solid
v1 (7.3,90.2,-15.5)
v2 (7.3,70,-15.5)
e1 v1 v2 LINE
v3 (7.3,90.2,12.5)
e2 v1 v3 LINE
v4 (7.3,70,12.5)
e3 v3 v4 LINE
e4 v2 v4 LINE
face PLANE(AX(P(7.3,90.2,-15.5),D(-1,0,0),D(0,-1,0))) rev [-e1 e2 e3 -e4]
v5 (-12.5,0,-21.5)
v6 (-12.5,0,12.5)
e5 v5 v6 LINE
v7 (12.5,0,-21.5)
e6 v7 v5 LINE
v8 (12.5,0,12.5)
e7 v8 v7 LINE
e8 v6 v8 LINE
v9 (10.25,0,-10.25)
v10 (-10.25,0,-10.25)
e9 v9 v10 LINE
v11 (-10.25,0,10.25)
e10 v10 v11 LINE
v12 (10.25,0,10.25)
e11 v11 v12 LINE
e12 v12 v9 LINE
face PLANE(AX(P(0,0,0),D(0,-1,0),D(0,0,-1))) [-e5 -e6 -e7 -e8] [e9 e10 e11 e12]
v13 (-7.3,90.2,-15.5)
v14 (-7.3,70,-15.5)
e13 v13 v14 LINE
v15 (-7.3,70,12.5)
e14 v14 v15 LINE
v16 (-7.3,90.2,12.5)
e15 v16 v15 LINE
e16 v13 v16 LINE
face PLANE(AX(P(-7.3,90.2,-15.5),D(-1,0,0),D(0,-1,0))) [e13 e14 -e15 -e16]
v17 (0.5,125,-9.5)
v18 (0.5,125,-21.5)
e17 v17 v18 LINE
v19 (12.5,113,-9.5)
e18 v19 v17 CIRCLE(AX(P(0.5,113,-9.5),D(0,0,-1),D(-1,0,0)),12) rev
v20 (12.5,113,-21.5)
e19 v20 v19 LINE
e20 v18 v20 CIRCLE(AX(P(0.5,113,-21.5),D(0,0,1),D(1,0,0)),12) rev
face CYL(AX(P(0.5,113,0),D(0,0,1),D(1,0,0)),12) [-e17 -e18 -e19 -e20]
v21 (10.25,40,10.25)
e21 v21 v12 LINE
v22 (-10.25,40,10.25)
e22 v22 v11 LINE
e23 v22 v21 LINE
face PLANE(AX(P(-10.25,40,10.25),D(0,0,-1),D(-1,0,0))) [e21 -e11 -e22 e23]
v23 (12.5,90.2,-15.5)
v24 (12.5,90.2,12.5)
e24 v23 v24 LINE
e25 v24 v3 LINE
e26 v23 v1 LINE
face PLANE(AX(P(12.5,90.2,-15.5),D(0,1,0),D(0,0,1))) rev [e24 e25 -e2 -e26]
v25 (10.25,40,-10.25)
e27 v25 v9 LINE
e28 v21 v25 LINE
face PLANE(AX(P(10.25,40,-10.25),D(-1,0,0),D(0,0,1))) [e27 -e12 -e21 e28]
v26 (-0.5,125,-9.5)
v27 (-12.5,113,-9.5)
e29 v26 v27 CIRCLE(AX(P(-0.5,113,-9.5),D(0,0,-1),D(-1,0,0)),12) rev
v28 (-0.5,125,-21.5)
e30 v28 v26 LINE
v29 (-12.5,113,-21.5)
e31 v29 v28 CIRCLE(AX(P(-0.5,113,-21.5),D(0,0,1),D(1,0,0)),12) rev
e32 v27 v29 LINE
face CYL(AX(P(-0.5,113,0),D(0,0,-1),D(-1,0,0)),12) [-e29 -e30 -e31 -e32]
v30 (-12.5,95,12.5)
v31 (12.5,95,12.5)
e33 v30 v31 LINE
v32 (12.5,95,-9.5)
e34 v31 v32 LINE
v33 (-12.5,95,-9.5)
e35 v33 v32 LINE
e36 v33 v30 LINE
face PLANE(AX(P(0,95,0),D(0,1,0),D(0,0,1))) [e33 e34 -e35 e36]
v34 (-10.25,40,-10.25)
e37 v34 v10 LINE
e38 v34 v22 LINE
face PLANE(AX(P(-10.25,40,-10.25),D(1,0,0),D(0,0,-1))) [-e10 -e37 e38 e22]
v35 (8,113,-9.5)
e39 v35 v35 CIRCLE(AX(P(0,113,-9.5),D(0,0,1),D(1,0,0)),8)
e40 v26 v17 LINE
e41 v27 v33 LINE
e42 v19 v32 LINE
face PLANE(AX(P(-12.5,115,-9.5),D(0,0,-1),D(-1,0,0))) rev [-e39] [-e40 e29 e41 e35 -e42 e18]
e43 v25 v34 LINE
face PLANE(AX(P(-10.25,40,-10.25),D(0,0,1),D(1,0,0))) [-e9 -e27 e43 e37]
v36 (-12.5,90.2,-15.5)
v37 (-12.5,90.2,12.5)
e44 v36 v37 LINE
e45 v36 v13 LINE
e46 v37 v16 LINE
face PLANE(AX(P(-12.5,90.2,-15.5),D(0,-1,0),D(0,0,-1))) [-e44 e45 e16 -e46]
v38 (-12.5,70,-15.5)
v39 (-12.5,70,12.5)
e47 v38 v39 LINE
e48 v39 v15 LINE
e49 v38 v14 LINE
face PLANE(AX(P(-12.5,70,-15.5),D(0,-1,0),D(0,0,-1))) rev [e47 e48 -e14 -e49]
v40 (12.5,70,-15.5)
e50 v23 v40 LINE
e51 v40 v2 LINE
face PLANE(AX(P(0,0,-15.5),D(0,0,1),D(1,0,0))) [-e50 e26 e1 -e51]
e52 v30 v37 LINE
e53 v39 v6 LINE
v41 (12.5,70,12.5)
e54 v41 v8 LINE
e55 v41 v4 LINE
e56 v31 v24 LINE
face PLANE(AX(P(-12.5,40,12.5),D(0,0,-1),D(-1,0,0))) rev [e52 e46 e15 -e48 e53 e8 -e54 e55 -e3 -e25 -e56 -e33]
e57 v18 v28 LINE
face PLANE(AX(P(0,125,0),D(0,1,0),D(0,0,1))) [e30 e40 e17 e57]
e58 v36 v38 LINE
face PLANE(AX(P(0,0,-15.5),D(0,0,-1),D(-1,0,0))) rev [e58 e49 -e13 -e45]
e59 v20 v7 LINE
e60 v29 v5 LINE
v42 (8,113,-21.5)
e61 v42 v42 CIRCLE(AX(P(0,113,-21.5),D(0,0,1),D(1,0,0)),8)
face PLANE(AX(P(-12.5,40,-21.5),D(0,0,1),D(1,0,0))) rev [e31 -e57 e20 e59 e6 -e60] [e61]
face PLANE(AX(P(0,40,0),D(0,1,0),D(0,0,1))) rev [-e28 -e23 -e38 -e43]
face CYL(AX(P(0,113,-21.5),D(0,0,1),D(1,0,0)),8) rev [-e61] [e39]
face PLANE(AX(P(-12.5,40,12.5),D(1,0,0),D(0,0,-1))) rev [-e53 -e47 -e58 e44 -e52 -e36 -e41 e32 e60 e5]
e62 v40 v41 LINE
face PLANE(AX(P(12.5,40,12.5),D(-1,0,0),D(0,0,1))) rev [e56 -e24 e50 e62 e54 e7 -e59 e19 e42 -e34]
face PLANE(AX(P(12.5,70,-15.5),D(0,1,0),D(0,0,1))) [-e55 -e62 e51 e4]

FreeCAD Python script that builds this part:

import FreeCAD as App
import Part
import Sketcher
from FreeCAD import Vector
Q = App.Units.Quantity


def edges_at(feature, points):
    """Names of the edges that pass closest to the given points."""
    edges = feature.Shape.Edges
    near = lambda p: min(range(len(edges)), key=lambda i: edges[i].distToShape(Part.Vertex(*p))[0])
    return sorted({f"Edge{near(p) + 1}" for p in points})


def add_polygon(sketch, points):
    """Adds a closed chain of lines whose ends are joined by coincident constraints."""
    first, n = sketch.GeometryCount, len(points)
    for a, b in zip(points, points[1:] + points[:1]):
        sketch.addGeometry(Part.LineSegment(App.Vector(*a, 0), App.Vector(*b, 0)), False)
    for i in range(n):
        sketch.addConstraint(Sketcher.Constraint("Coincident", first + i, 2, first + (i + 1) % n, 1))

doc = App.newDocument("Part")
params = doc.addObject("Spreadsheet::Sheet", "Params")
for row, (alias, value) in enumerate([
    ("sketch1_width", "25 mm"),
    ("sketch1_height", "34 mm"),
    ("sketch1_width2", "20.5 mm"),
    ("pad1_length", "40 mm"),
    ("sketch2_width", "25 mm"),
    ("sketch2_height", "34 mm"),
    ("pad2_length", "55 mm"),
    ("sketch3_width", "25 mm"),
    ("sketch3_height", "12 mm"),
    ("pad3_length", "20 mm"),
    ("sketch4_width", "25 mm"),
    ("sketch4_height", "12 mm"),
    ("pad4_length", "10 mm"),
    ("sketch5_diameter", "16 mm"),
    ("pocket1_length", "12 mm"),
    ("fillet_radius", "12 mm"),
    ("sketch6_width", "5.2 mm"),
    ("sketch6_height", "20.2 mm"),
    ("pocket2_length", "28 mm"),
], start=1):
    params.set(f"A{row}", alias)
    params.set(f"B{row}", "=" + value)
    params.setAlias(f"B{row}", alias)

body = doc.addObject("PartDesign::Body", "Body")

sketch1 = body.newObject("Sketcher::SketchObject", "Sketch")
sketch1.AttachmentSupport = (doc.getObject("XZ_Plane"), [""])
sketch1.MapMode = "FlatFace"
add_polygon(sketch1, [(-12, -22), (-12, 12), (12, 12), (12, -22)])
add_polygon(sketch1, [(10, 10), (-10, 10), (-10, -10), (10, -10)])
sketch1.addConstraint([
    Sketcher.Constraint("Vertical", 0),
    Sketcher.Constraint("Horizontal", 1),
    Sketcher.Constraint("Vertical", 2),
    Sketcher.Constraint("Horizontal", 3),
    Sketcher.Constraint("Horizontal", 4),
    Sketcher.Constraint("Vertical", 5),
    Sketcher.Constraint("Horizontal", 6),
    Sketcher.Constraint("Vertical", 7),
    Sketcher.Constraint("Symmetric", 4, 2, 6, 2, -1, 1),
    Sketcher.Constraint("Equal", 6, 5),
    Sketcher.Constraint("DistanceX", 1, 1, 1, 2, Q("25 mm")),
    Sketcher.Constraint("DistanceY", 0, 1, 0, 2, Q("34 mm")),
    Sketcher.Constraint("DistanceX", 4, 2, 4, 1, Q("20.5 mm")),
    Sketcher.Constraint("DistanceX", 0, 2, -1, 1, Q("12.5 mm")),
    Sketcher.Constraint("DistanceY", -1, 1, 0, 2, Q("12.5 mm")),
])
sketch1.setExpression("Constraints[18]", "Params.sketch1_width")
sketch1.setExpression("Constraints[19]", "Params.sketch1_height")
sketch1.setExpression("Constraints[20]", "Params.sketch1_width2")
pad1 = body.newObject("PartDesign::Pad", "Pad")
pad1.Profile = sketch1
pad1.setExpression("Length", "Params.pad1_length")
pad1.Reversed = True

sketch2 = body.newObject("Sketcher::SketchObject", "Sketch001")
sketch2.AttachmentSupport = (doc.getObject("XZ_Plane"), [""])
sketch2.MapMode = "FlatFace"
sketch2.AttachmentOffset = App.Placement(Vector(0, 0, -40), App.Rotation())
add_polygon(sketch2, [(-12, -22), (-12, 12), (12, 12), (12, -22)])
sketch2.addConstraint([
    Sketcher.Constraint("Vertical", 0),
    Sketcher.Constraint("Horizontal", 1),
    Sketcher.Constraint("Vertical", 2),
    Sketcher.Constraint("Horizontal", 3),
    Sketcher.Constraint("DistanceX", 1, 1, 1, 2, Q("25 mm")),
    Sketcher.Constraint("DistanceY", 0, 1, 0, 2, Q("34 mm")),
    Sketcher.Constraint("DistanceX", 0, 2, -1, 1, Q("12.5 mm")),
    Sketcher.Constraint("DistanceY", -1, 1, 0, 2, Q("12.5 mm")),
])
sketch2.setExpression("Constraints[8]", "Params.sketch2_width")
sketch2.setExpression("Constraints[9]", "Params.sketch2_height")
pad2 = body.newObject("PartDesign::Pad", "Pad001")
pad2.Profile = sketch2
pad2.setExpression("Length", "Params.pad2_length")
pad2.Reversed = True

sketch3 = body.newObject("Sketcher::SketchObject", "Sketch002")
sketch3.AttachmentSupport = (doc.getObject("XZ_Plane"), [""])
sketch3.MapMode = "FlatFace"
sketch3.AttachmentOffset = App.Placement(Vector(0, 0, -95), App.Rotation())
add_polygon(sketch3, [(-12, -22), (-12, -10), (12, -10), (12, -22)])
sketch3.addConstraint([
    Sketcher.Constraint("Vertical", 0),
    Sketcher.Constraint("Horizontal", 1),
    Sketcher.Constraint("Vertical", 2),
    Sketcher.Constraint("Horizontal", 3),
    Sketcher.Constraint("DistanceX", 1, 1, 1, 2, Q("25 mm")),
    Sketcher.Constraint("DistanceY", 0, 1, 0, 2, Q("12 mm")),
    Sketcher.Constraint("DistanceX", 0, 2, -1, 1, Q("12.5 mm")),
    Sketcher.Constraint("DistanceY", 0, 2, -1, 1, Q("9.5 mm")),
])
sketch3.setExpression("Constraints[8]", "Params.sketch3_width")
sketch3.setExpression("Constraints[9]", "Params.sketch3_height")
pad3 = body.newObject("PartDesign::Pad", "Pad002")
pad3.Profile = sketch3
pad3.setExpression("Length", "Params.pad3_length")
pad3.Reversed = True

sketch4 = body.newObject("Sketcher::SketchObject", "Sketch003")
sketch4.AttachmentSupport = (doc.getObject("XZ_Plane"), [""])
sketch4.MapMode = "FlatFace"
sketch4.AttachmentOffset = App.Placement(Vector(0, 0, -115), App.Rotation())
add_polygon(sketch4, [(-12, -22), (-12, -10), (12, -10), (12, -22)])
sketch4.addConstraint([
    Sketcher.Constraint("Vertical", 0),
    Sketcher.Constraint("Horizontal", 1),
    Sketcher.Constraint("Vertical", 2),
    Sketcher.Constraint("Horizontal", 3),
    Sketcher.Constraint("DistanceX", 1, 1, 1, 2, Q("25 mm")),
    Sketcher.Constraint("DistanceY", 0, 1, 0, 2, Q("12 mm")),
    Sketcher.Constraint("DistanceX", 0, 2, -1, 1, Q("12.5 mm")),
    Sketcher.Constraint("DistanceY", 0, 2, -1, 1, Q("9.5 mm")),
])
sketch4.setExpression("Constraints[8]", "Params.sketch4_width")
sketch4.setExpression("Constraints[9]", "Params.sketch4_height")
pad4 = body.newObject("PartDesign::Pad", "Pad003")
pad4.Profile = sketch4
pad4.setExpression("Length", "Params.pad4_length")
pad4.Reversed = True

sketch5 = body.newObject("Sketcher::SketchObject", "Sketch004")
sketch5.AttachmentSupport = (doc.getObject("XY_Plane"), [""])
sketch5.MapMode = "FlatFace"
sketch5.AttachmentOffset = App.Placement(Vector(0, 0, -9.5), App.Rotation())
sketch5.addGeometry(Part.Circle(Vector(0, 113, 0), Vector(0, 0, 1), 8), False)
sketch5.addConstraint([
    Sketcher.Constraint("PointOnObject", 0, 3, -2),
    Sketcher.Constraint("Diameter", 0, Q("16 mm")),
    Sketcher.Constraint("DistanceY", -1, 1, 0, 3, Q("113 mm")),
])
sketch5.setExpression("Constraints[1]", "Params.sketch5_diameter")
pocket1 = body.newObject("PartDesign::Pocket", "Pocket")
pocket1.Profile = sketch5
pocket1.setExpression("Length", "Params.pocket1_length")
doc.recompute()

fillet = body.newObject("PartDesign::Fillet", "Fillet")
fillet.Base = (pocket1, edges_at(pocket1, [(-12.5, 125, -15.5), (12.5, 125, -15.5)]))
fillet.setExpression("Radius", "Params.fillet_radius")

sketch6 = body.newObject("Sketcher::SketchObject", "Sketch005")
sketch6.AttachmentSupport = (doc.getObject("XY_Plane"), [""])
sketch6.MapMode = "FlatFace"
sketch6.AttachmentOffset = App.Placement(Vector(0, 0, 12.5), App.Rotation())
add_polygon(sketch6, [(-12, 90), (-12, 70), (-7, 70), (-7, 90)])
add_polygon(sketch6, [(7, 90), (7, 70), (12, 70), (12, 90)])
sketch6.addConstraint([
    Sketcher.Constraint("Vertical", 0),
    Sketcher.Constraint("Horizontal", 1),
    Sketcher.Constraint("Vertical", 2),
    Sketcher.Constraint("Horizontal", 3),
    Sketcher.Constraint("Vertical", 4),
    Sketcher.Constraint("Horizontal", 5),
    Sketcher.Constraint("Vertical", 6),
    Sketcher.Constraint("Horizontal", 7),
    Sketcher.Constraint("Symmetric", 1, 2, 4, 2, -2),
    Sketcher.Constraint("Symmetric", 3, 2, 6, 2, -2),
    Sketcher.Constraint("DistanceX", 1, 1, 1, 2, Q("5.2 mm")),
    Sketcher.Constraint("DistanceY", 0, 2, 0, 1, Q("20.2 mm")),
    Sketcher.Constraint("DistanceY", -1, 1, 0, 2, Q("70 mm")),
    Sketcher.Constraint("DistanceX", 0, 2, 5, 2, Q("25 mm")),
])
sketch6.setExpression("Constraints[18]", "Params.sketch6_width")
sketch6.setExpression("Constraints[19]", "Params.sketch6_height")
pocket2 = body.newObject("PartDesign::Pocket", "Pocket001")
pocket2.Profile = sketch6
pocket2.setExpression("Length", "Params.pocket2_length")

doc.recompute()
